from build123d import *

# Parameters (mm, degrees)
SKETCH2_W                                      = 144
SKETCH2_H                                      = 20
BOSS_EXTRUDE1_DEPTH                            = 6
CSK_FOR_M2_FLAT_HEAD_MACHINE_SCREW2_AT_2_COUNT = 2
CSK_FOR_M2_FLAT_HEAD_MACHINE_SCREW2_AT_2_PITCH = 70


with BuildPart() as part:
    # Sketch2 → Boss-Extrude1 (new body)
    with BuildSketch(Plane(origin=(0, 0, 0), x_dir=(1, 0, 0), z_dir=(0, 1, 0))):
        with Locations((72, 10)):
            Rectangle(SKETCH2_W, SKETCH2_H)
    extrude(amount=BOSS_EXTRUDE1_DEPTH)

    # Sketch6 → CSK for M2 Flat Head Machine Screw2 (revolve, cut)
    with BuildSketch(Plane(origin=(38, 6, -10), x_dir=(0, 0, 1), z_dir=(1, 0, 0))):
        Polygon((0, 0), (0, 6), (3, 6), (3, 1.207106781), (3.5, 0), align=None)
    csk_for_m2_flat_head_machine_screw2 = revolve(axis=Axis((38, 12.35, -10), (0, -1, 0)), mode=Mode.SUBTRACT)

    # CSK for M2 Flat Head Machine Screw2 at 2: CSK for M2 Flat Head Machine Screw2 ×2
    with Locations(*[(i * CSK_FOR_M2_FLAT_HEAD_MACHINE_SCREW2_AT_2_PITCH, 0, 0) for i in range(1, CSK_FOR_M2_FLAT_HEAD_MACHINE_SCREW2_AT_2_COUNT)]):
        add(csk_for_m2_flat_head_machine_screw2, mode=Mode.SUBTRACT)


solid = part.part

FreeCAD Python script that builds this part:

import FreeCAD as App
import Part
import Sketcher
from FreeCAD import Vector
Q = App.Units.Quantity


def add_polygon(sketch, points):
    """Adds a closed chain of lines whose ends are joined by coincident constraints."""
    first, n = sketch.GeometryCount, len(points)
    for a, b in zip(points, points[1:] + points[:1]):
        sketch.addGeometry(Part.LineSegment(App.Vector(*a, 0), App.Vector(*b, 0)), False)
    for i in range(n):
        sketch.addConstraint(Sketcher.Constraint("Coincident", first + i, 2, first + (i + 1) % n, 1))

doc = App.newDocument("Part")
params = doc.addObject("Spreadsheet::Sheet", "Params")
for row, (alias, value) in enumerate([
    ("sketch1_width", "144 mm"),
    ("sketch1_height", "20 mm"),
    ("pad1_length", "6 mm"),
    ("sketch2_width", "6 mm"),
    ("sketch2_height", "3 mm"),
    ("sketch2_height2", "3.5 mm"),
    ("groove_angle", "360 deg"),
    ("linearpattern_pitch", "70 mm"),
], start=1):
    params.set(f"A{row}", alias)
    params.set(f"B{row}", "=" + value)
    params.setAlias(f"B{row}", alias)

body = doc.addObject("PartDesign::Body", "Body")

# Sketch on XZ plane
sketch1 = body.newObject("Sketcher::SketchObject", "Sketch")
sketch1.AttachmentSupport = (doc.getObject("XZ_Plane"), [""])
sketch1.MapMode = "FlatFace"
add_polygon(sketch1, [(0, -20), (0, 0), (144, 0), (144, -20)])  # lines 0-3
sketch1.addConstraint([
    Sketcher.Constraint("Vertical", 0),
    Sketcher.Constraint("Horizontal", 1),
    Sketcher.Constraint("Vertical", 2),
    Sketcher.Constraint("Horizontal", 3),
    Sketcher.Constraint("Coincident", 0, 2, -1, 1),
    Sketcher.Constraint("DistanceX", 1, 1, 1, 2, Q("144 mm")),
    Sketcher.Constraint("DistanceY", 0, 1, 0, 2, Q("20 mm")),
])
sketch1.setExpression("Constraints[9]", "Params.sketch1_width")
sketch1.setExpression("Constraints[10]", "Params.sketch1_height")
pad1 = body.newObject("PartDesign::Pad", "Pad")
pad1.Profile = sketch1
pad1.setExpression("Length", "Params.pad1_length")
pad1.Reversed = True

# Sketch on YZ plane
sketch2 = body.newObject("Sketcher::SketchObject", "Sketch001")
sketch2.AttachmentSupport = (doc.getObject("YZ_Plane"), [""])
sketch2.MapMode = "FlatFace"
sketch2.AttachmentOffset = App.Placement(Vector(0, 0, 38), App.Rotation())
add_polygon(sketch2, [(0, -10), (6, -10), (6, -6.5), (4.8, -7), (0, -7)])  # lines 0-4
sketch2.addGeometry(Part.LineSegment(Vector(6, -10, 0), Vector(0, -10, 0)), True)  # axis
sketch2.addConstraint([
    Sketcher.Constraint("Horizontal", 0),
    Sketcher.Constraint("Vertical", 1),
    Sketcher.Constraint("Horizontal", 3),
    Sketcher.Constraint("Vertical", 4),
    Sketcher.Constraint("Horizontal", 5),
    Sketcher.Constraint("Coincident", 5, 1, 0, 2),
    Sketcher.Constraint("PointOnObject", 3, 2, -2),
    Sketcher.Constraint("PointOnObject", 5, 2, -2),
    Sketcher.Constraint("DistanceX", 0, 1, 0, 2, Q("6 mm")),
    Sketcher.Constraint("DistanceY", 4, 2, 4, 1, Q("3 mm")),
    Sketcher.Constraint("DistanceY", 1, 1, 1, 2, Q("3.5 mm")),
    Sketcher.Constraint("DistanceY", 0, 2, -1, 1, Q("10 mm")),
    Sketcher.Constraint("Angle", 2, Q("-157.5 deg")),
])
sketch2.setExpression("Constraints[13]", "Params.sketch2_width")
sketch2.setExpression("Constraints[14]", "Params.sketch2_height")
sketch2.setExpression("Constraints[15]", "Params.sketch2_height2")
groove = body.newObject("PartDesign::Groove", "Groove")
groove.Profile = sketch2
groove.ReferenceAxis = (sketch2, ["Axis0"])
groove.setExpression("Angle", "Params.groove_angle")
doc.recompute()

linearpattern = body.newObject("PartDesign::LinearPattern", "LinearPattern")
linearpattern.Originals = [groove]
linearpattern.Direction = (doc.getObject("X_Axis"), [""])
linearpattern.Mode = "offset"
linearpattern.setExpression("Offset", "Params.linearpattern_pitch")
linearpattern.Occurrences = 2
body.Tip = linearpattern

doc.recompute()
